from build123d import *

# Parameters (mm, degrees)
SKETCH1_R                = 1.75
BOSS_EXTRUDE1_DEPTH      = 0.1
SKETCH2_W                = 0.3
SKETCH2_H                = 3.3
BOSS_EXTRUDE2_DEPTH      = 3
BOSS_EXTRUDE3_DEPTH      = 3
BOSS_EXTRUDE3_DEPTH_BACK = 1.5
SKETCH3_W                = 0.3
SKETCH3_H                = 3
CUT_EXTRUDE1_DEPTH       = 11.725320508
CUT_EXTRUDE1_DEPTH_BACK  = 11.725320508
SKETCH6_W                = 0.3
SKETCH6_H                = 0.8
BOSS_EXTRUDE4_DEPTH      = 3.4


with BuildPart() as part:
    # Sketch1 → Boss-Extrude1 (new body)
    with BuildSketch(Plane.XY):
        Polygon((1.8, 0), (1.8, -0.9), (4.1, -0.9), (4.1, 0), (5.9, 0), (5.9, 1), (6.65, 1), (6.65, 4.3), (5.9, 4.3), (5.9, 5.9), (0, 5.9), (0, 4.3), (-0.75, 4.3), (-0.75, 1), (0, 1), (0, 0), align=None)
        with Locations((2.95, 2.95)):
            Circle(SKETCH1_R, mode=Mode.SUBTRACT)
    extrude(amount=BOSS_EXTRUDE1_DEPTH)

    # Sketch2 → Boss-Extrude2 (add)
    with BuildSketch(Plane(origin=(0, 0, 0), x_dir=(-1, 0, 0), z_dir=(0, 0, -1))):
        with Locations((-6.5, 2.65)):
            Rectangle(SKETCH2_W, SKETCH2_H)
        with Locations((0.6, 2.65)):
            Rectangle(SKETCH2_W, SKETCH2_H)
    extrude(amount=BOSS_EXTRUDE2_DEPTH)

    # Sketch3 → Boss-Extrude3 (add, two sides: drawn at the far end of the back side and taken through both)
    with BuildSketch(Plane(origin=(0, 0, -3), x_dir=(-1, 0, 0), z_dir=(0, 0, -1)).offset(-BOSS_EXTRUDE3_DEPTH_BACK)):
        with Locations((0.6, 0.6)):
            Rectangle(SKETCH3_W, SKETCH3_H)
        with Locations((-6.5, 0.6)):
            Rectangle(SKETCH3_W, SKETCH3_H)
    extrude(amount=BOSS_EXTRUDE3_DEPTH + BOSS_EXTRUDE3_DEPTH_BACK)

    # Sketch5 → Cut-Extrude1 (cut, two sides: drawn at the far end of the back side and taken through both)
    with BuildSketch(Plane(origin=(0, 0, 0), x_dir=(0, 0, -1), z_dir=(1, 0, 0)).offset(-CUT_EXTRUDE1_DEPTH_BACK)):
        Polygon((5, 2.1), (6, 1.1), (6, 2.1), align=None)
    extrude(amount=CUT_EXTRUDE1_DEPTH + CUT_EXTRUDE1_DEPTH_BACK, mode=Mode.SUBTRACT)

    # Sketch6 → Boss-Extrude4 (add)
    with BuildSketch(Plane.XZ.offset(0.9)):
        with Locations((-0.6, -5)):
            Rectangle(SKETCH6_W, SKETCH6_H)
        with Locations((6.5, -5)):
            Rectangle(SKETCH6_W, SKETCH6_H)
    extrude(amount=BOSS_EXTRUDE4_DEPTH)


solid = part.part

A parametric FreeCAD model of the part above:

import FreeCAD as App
import Part
import Sketcher
from FreeCAD import Vector

doc = App.newDocument("Part")
params = doc.addObject("Spreadsheet::Sheet", "Params")
for row, (alias, value) in enumerate([
    ("sketch1_diameter", "3.5 mm"),
    ("sketch1_height", "1 mm"),
    ("sketch1_width", "2.3 mm"),
    ("sketch1_width2", "1.8 mm"),
    ("sketch1_height2", "0.9 mm"),
    ("pad1_length", "0.1 mm"),
    ("sketch2_width", "0.3 mm"),
    ("sketch2_height", "3.3 mm"),
    ("pad2_length", "3 mm"),
    ("sketch3_height", "3 mm"),
    ("sketch3_width", "0.3 mm"),
    ("pad3_length", "3 mm"),
    ("pad3_length2", "1.5 mm"),
    ("sketch4_width", "1 mm"),
    ("sketch5_width", "0.3 mm"),
    ("sketch5_height", "0.8 mm"),
    ("pad4_length", "3.4 mm"),
], start=1):
    params.set(f"A{row}", alias)
    params.set(f"B{row}", "=" + value)
    params.setAlias(f"B{row}", alias)

body = doc.addObject("PartDesign::Body", "Body")

sketch1 = body.newObject("Sketcher::SketchObject", "Sketch")
sketch1.AttachmentSupport = (doc.getObject("XY_Plane"), [""])
sketch1.MapMode = "FlatFace"
sketch1.addGeometry([
    Part.LineSegment(Vector(1.8, 0, 0), Vector(1.8, -0.9, 0)),
    Part.LineSegment(Vector(1.8, -0.9, 0), Vector(4.1, -0.9, 0)),
    Part.LineSegment(Vector(4.1, -0.9, 0), Vector(4.1, 0, 0)),
    Part.LineSegment(Vector(4.1, 0, 0), Vector(5.9, 0, 0)),
    Part.LineSegment(Vector(5.9, 0, 0), Vector(5.9, 1, 0)),
    Part.LineSegment(Vector(5.9, 1, 0), Vector(6.7, 1, 0)),
    Part.LineSegment(Vector(6.7, 1, 0), Vector(6.7, 4.3, 0)),
    Part.LineSegment(Vector(6.7, 4.3, 0), Vector(5.9, 4.3, 0)),
    Part.LineSegment(Vector(5.9, 4.3, 0), Vector(5.9, 5.9, 0)),
    Part.LineSegment(Vector(5.9, 5.9, 0), Vector(0, 5.9, 0)),
    Part.LineSegment(Vector(0, 5.9, 0), Vector(0, 4.3, 0)),
    Part.LineSegment(Vector(0, 4.3, 0), Vector(-0.8, 4.3, 0)),
    Part.LineSegment(Vector(-0.8, 4.3, 0), Vector(-0.8, 1, 0)),
    Part.LineSegment(Vector(-0.8, 1, 0), Vector(0, 1, 0)),
    Part.LineSegment(Vector(0, 1, 0), Vector(0, 0, 0)),
    Part.LineSegment(Vector(0, 0, 0), Vector(1.8, 0, 0)),
    Part.Circle(Vector(3, 3, 0), Vector(0, 0, 1), 1.8),
], False)
sketch1.addConstraint([
    Sketcher.Constraint("Coincident", 0, 2, 1, 1),
    Sketcher.Constraint("Coincident", 1, 2, 2, 1),
    Sketcher.Constraint("Coincident", 2, 2, 3, 1),
    Sketcher.Constraint("Coincident", 3, 2, 4, 1),
    Sketcher.Constraint("Coincident", 4, 2, 5, 1),
    Sketcher.Constraint("Coincident", 5, 2, 6, 1),
    Sketcher.Constraint("Coincident", 6, 2, 7, 1),
    Sketcher.Constraint("Coincident", 7, 2, 8, 1),
    Sketcher.Constraint("Coincident", 8, 2, 9, 1),
    Sketcher.Constraint("Coincident", 9, 2, 10, 1),
    Sketcher.Constraint("Coincident", 10, 2, 11, 1),
    Sketcher.Constraint("Coincident", 11, 2, 12, 1),
    Sketcher.Constraint("Coincident", 12, 2, 13, 1),
    Sketcher.Constraint("Coincident", 13, 2, 14, 1),
    Sketcher.Constraint("Coincident", 14, 2, 15, 1),
    Sketcher.Constraint("Coincident", 15, 2, 0, 1),
    Sketcher.Constraint("Vertical", 0),
    Sketcher.Constraint("Horizontal", 1),
    Sketcher.Constraint("Vertical", 2),
    Sketcher.Constraint("Horizontal", 3),
    Sketcher.Constraint("Vertical", 4),
    Sketcher.Constraint("Horizontal", 5),
    Sketcher.Constraint("Vertical", 6),
    Sketcher.Constraint("Horizontal", 7),
    Sketcher.Constraint("Vertical", 8),
    Sketcher.Constraint("Horizontal", 9),
    Sketcher.Constraint("Vertical", 10),
    Sketcher.Constraint("Horizontal", 11),
    Sketcher.Constraint("Vertical", 12),
    Sketcher.Constraint("Horizontal", 13),
    Sketcher.Constraint("Vertical", 14),
    Sketcher.Constraint("Horizontal", 15),
    Sketcher.Constraint("Coincident", 14, 2, -1, 1),
    Sketcher.Constraint("PointOnObject", 2, 2, -1),
    Sketcher.Constraint("PointOnObject", 9, 2, -2),
    Sketcher.Constraint("Horizontal", 7, 2, 10, 2),
    Sketcher.Constraint("Horizontal", 5, 2, 12, 2),
    Sketcher.Constraint("Vertical", 4, 2, 7, 2),
    Sketcher.Constraint("Equal", 7, 11),
    Sketcher.Constraint("Equal", 3, 15),
    Sketcher.Constraint("Diameter", 16, 3.5),
    Sketcher.Constraint("DistanceY", 4, 1, 4, 2, 1.0),
    Sketcher.Constraint("DistanceX", 1, 1, 1, 2, 2.3),
    Sketcher.Constraint("DistanceX", 3, 1, 3, 2, 1.8),
    Sketcher.Constraint("DistanceY", 0, 2, 0, 1, 0.9),
    Sketcher.Constraint("DistanceY", 6, 1, 6, 2, 3.3),
    Sketcher.Constraint("DistanceY", 8, 1, 8, 2, 1.6),
    Sketcher.Constraint("DistanceX", 5, 1, 5, 2, 0.75),
    Sketcher.Constraint("DistanceX", 16, 3, 5, 2, 3.7),
    Sketcher.Constraint("DistanceY", -1, 1, 16, 3, 2.95),
])
sketch1.setExpression("Constraints[40]", "Params.sketch1_diameter")
sketch1.setExpression("Constraints[41]", "Params.sketch1_height")
sketch1.setExpression("Constraints[42]", "Params.sketch1_width")
sketch1.setExpression("Constraints[43]", "Params.sketch1_width2")
sketch1.setExpression("Constraints[44]", "Params.sketch1_height2")
pad1 = body.newObject("PartDesign::Pad", "Pad")
pad1.Profile = sketch1
pad1.setExpression("Length", "Params.pad1_length")

sketch2 = body.newObject("Sketcher::SketchObject", "Sketch001")
sketch2.AttachmentSupport = (doc.getObject("XY_Plane"), [""])
sketch2.MapMode = "FlatFace"
sketch2.addGeometry([
    Part.LineSegment(Vector(6.65, 4.3, 0), Vector(6.65, 1, 0)),
    Part.LineSegment(Vector(6.65, 1, 0), Vector(6.35, 1, 0)),
    Part.LineSegment(Vector(6.35, 1, 0), Vector(6.35, 4.3, 0)),
    Part.LineSegment(Vector(6.35, 4.3, 0), Vector(6.65, 4.3, 0)),
    Part.LineSegment(Vector(-0.45, 4.3, 0), Vector(-0.45, 1, 0)),
    Part.LineSegment(Vector(-0.45, 1, 0), Vector(-0.75, 1, 0)),
    Part.LineSegment(Vector(-0.75, 1, 0), Vector(-0.75, 4.3, 0)),
    Part.LineSegment(Vector(-0.75, 4.3, 0), Vector(-0.45, 4.3, 0)),
], False)
sketch2.addConstraint([
    Sketcher.Constraint("Coincident", 0, 2, 1, 1),
    Sketcher.Constraint("Coincident", 1, 2, 2, 1),
    Sketcher.Constraint("Coincident", 2, 2, 3, 1),
    Sketcher.Constraint("Coincident", 3, 2, 0, 1),
    Sketcher.Constraint("Coincident", 4, 2, 5, 1),
    Sketcher.Constraint("Coincident", 5, 2, 6, 1),
    Sketcher.Constraint("Coincident", 6, 2, 7, 1),
    Sketcher.Constraint("Coincident", 7, 2, 4, 1),
    Sketcher.Constraint("Vertical", 0),
    Sketcher.Constraint("Horizontal", 1),
    Sketcher.Constraint("Vertical", 2),
    Sketcher.Constraint("Horizontal", 3),
    Sketcher.Constraint("Vertical", 4),
    Sketcher.Constraint("Horizontal", 5),
    Sketcher.Constraint("Vertical", 6),
    Sketcher.Constraint("Horizontal", 7),
    Sketcher.Constraint("Horizontal", 1, 2, 4, 2),
    Sketcher.Constraint("Horizontal", 3, 2, 6, 2),
    Sketcher.Constraint("Equal", 3, 5),
    Sketcher.Constraint("DistanceX", 1, 2, 1, 1, 0.3),
    Sketcher.Constraint("DistanceY", 0, 2, 0, 1, 3.3),
    Sketcher.Constraint("DistanceY", -1, 1, 0, 2, 1.0),
    Sketcher.Constraint("DistanceX", 4, 2, 1, 2, 6.8),
    Sketcher.Constraint("DistanceX", -1, 1, 0, 2, 6.65),
])
sketch2.setExpression("Constraints[19]", "Params.sketch2_width")
sketch2.setExpression("Constraints[20]", "Params.sketch2_height")
pad2 = body.newObject("PartDesign::Pad", "Pad001")
pad2.Profile = sketch2
pad2.setExpression("Length", "Params.pad2_length")
pad2.Reversed = True

sketch3 = body.newObject("Sketcher::SketchObject", "Sketch002")
sketch3.AttachmentSupport = (doc.getObject("XY_Plane"), [""])
sketch3.MapMode = "FlatFace"
sketch3.AttachmentOffset = App.Placement(Vector(0, 0, -3), App.Rotation())
sketch3.addGeometry([
    Part.LineSegment(Vector(-0.45, 2.1, 0), Vector(-0.45, -0.9, 0)),
    Part.LineSegment(Vector(-0.45, -0.9, 0), Vector(-0.75, -0.9, 0)),
    Part.LineSegment(Vector(-0.75, -0.9, 0), Vector(-0.75, 2.1, 0)),
    Part.LineSegment(Vector(-0.75, 2.1, 0), Vector(-0.45, 2.1, 0)),
    Part.LineSegment(Vector(6.65, 2.1, 0), Vector(6.65, -0.9, 0)),
    Part.LineSegment(Vector(6.65, -0.9, 0), Vector(6.35, -0.9, 0)),
    Part.LineSegment(Vector(6.35, -0.9, 0), Vector(6.35, 2.1, 0)),
    Part.LineSegment(Vector(6.35, 2.1, 0), Vector(6.65, 2.1, 0)),
], False)
sketch3.addConstraint([
    Sketcher.Constraint("Coincident", 0, 2, 1, 1),
    Sketcher.Constraint("Coincident", 1, 2, 2, 1),
    Sketcher.Constraint("Coincident", 2, 2, 3, 1),
    Sketcher.Constraint("Coincident", 3, 2, 0, 1),
    Sketcher.Constraint("Coincident", 4, 2, 5, 1),
    Sketcher.Constraint("Coincident", 5, 2, 6, 1),
    Sketcher.Constraint("Coincident", 6, 2, 7, 1),
    Sketcher.Constraint("Coincident", 7, 2, 4, 1),
    Sketcher.Constraint("Vertical", 0),
    Sketcher.Constraint("Horizontal", 1),
    Sketcher.Constraint("Vertical", 2),
    Sketcher.Constraint("Horizontal", 3),
    Sketcher.Constraint("Vertical", 4),
    Sketcher.Constraint("Horizontal", 5),
    Sketcher.Constraint("Vertical", 6),
    Sketcher.Constraint("Horizontal", 7),
    Sketcher.Constraint("Horizontal", 1, 2, 4, 2),
    Sketcher.Constraint("Horizontal", 3, 2, 6, 2),
    Sketcher.Constraint("Equal", 3, 5),
    Sketcher.Constraint("DistanceY", 0, 2, 0, 1, 3.0),
    Sketcher.Constraint("DistanceX", 1, 2, 1, 1, 0.3),
    Sketcher.Constraint("DistanceY", 0, 2, -1, 1, 0.9),
    Sketcher.Constraint("DistanceX", 0, 2, 4, 2, 7.1),
    Sketcher.Constraint("DistanceX", 0, 2, -1, 1, 0.45),
])
sketch3.setExpression("Constraints[19]", "Params.sketch3_height")
sketch3.setExpression("Constraints[20]", "Params.sketch3_width")
pad3 = body.newObject("PartDesign::Pad", "Pad002")
pad3.Profile = sketch3
pad3.Type = "TwoLengths"
pad3.setExpression("Length", "Params.pad3_length")
pad3.setExpression("Length2", "Params.pad3_length2")
pad3.Reversed = True

sketch4 = body.newObject("Sketcher::SketchObject", "Sketch003")
sketch4.AttachmentSupport = (doc.getObject("YZ_Plane"), [""])
sketch4.MapMode = "FlatFace"
sketch4.addGeometry([
    Part.LineSegment(Vector(2.1, -5, 0), Vector(1.1, -6, 0)),
    Part.LineSegment(Vector(1.1, -6, 0), Vector(2.1, -6, 0)),
    Part.LineSegment(Vector(2.1, -6, 0), Vector(2.1, -5, 0)),
], False)
sketch4.addConstraint([
    Sketcher.Constraint("Coincident", 0, 2, 1, 1),
    Sketcher.Constraint("Coincident", 1, 2, 2, 1),
    Sketcher.Constraint("Coincident", 2, 2, 0, 1),
    Sketcher.Constraint("Horizontal", 1),
    Sketcher.Constraint("Vertical", 2),
    Sketcher.Constraint("Equal", 1, 2),
    Sketcher.Constraint("DistanceX", 1, 1, 1, 2, 1.0),
    Sketcher.Constraint("DistanceY", 0, 2, -1, 1, 6.0),
    Sketcher.Constraint("DistanceX", -1, 1, 0, 2, 1.1),
])
sketch4.setExpression("Constraints[6]", "Params.sketch4_width")
pocket1 = body.newObject("PartDesign::Pocket", "Pocket")
pocket1.Profile = sketch4
pocket1.Type = "ThroughAll"
pocket1.Midplane = True

sketch5 = body.newObject("Sketcher::SketchObject", "Sketch004")
sketch5.AttachmentSupport = (doc.getObject("XZ_Plane"), [""])
sketch5.MapMode = "FlatFace"
sketch5.AttachmentOffset = App.Placement(Vector(0, 0, 0.9), App.Rotation())
sketch5.addGeometry([
    Part.LineSegment(Vector(-0.75, -4.6, 0), Vector(-0.75, -5.4, 0)),
    Part.LineSegment(Vector(-0.75, -5.4, 0), Vector(-0.45, -5.4, 0)),
    Part.LineSegment(Vector(-0.45, -5.4, 0), Vector(-0.45, -4.6, 0)),
    Part.LineSegment(Vector(-0.45, -4.6, 0), Vector(-0.75, -4.6, 0)),
    Part.LineSegment(Vector(6.35, -4.6, 0), Vector(6.35, -5.4, 0)),
    Part.LineSegment(Vector(6.35, -5.4, 0), Vector(6.65, -5.4, 0)),
    Part.LineSegment(Vector(6.65, -5.4, 0), Vector(6.65, -4.6, 0)),
    Part.LineSegment(Vector(6.65, -4.6, 0), Vector(6.35, -4.6, 0)),
], False)
sketch5.addConstraint([
    Sketcher.Constraint("Coincident", 0, 2, 1, 1),
    Sketcher.Constraint("Coincident", 1, 2, 2, 1),
    Sketcher.Constraint("Coincident", 2, 2, 3, 1),
    Sketcher.Constraint("Coincident", 3, 2, 0, 1),
    Sketcher.Constraint("Coincident", 4, 2, 5, 1),
    Sketcher.Constraint("Coincident", 5, 2, 6, 1),
    Sketcher.Constraint("Coincident", 6, 2, 7, 1),
    Sketcher.Constraint("Coincident", 7, 2, 4, 1),
    Sketcher.Constraint("Vertical", 0),
    Sketcher.Constraint("Horizontal", 1),
    Sketcher.Constraint("Vertical", 2),
    Sketcher.Constraint("Horizontal", 3),
    Sketcher.Constraint("Vertical", 4),
    Sketcher.Constraint("Horizontal", 5),
    Sketcher.Constraint("Vertical", 6),
    Sketcher.Constraint("Horizontal", 7),
    Sketcher.Constraint("Horizontal", 1, 2, 4, 2),
    Sketcher.Constraint("Horizontal", 3, 2, 6, 2),
    Sketcher.Constraint("Equal", 3, 5),
    Sketcher.Constraint("DistanceX", 1, 1, 1, 2, 0.3),
    Sketcher.Constraint("DistanceY", 0, 2, 0, 1, 0.8),
    Sketcher.Constraint("DistanceY", 0, 2, -1, 1, 5.4),
    Sketcher.Constraint("DistanceX", 1, 2, 4, 2, 6.8),
    Sketcher.Constraint("DistanceX", 0, 2, -1, 1, 0.75),
])
sketch5.setExpression("Constraints[19]", "Params.sketch5_width")
sketch5.setExpression("Constraints[20]", "Params.sketch5_height")
pad4 = body.newObject("PartDesign::Pad", "Pad003")
pad4.Profile = sketch5
pad4.setExpression("Length", "Params.pad4_length")

doc.recompute()
